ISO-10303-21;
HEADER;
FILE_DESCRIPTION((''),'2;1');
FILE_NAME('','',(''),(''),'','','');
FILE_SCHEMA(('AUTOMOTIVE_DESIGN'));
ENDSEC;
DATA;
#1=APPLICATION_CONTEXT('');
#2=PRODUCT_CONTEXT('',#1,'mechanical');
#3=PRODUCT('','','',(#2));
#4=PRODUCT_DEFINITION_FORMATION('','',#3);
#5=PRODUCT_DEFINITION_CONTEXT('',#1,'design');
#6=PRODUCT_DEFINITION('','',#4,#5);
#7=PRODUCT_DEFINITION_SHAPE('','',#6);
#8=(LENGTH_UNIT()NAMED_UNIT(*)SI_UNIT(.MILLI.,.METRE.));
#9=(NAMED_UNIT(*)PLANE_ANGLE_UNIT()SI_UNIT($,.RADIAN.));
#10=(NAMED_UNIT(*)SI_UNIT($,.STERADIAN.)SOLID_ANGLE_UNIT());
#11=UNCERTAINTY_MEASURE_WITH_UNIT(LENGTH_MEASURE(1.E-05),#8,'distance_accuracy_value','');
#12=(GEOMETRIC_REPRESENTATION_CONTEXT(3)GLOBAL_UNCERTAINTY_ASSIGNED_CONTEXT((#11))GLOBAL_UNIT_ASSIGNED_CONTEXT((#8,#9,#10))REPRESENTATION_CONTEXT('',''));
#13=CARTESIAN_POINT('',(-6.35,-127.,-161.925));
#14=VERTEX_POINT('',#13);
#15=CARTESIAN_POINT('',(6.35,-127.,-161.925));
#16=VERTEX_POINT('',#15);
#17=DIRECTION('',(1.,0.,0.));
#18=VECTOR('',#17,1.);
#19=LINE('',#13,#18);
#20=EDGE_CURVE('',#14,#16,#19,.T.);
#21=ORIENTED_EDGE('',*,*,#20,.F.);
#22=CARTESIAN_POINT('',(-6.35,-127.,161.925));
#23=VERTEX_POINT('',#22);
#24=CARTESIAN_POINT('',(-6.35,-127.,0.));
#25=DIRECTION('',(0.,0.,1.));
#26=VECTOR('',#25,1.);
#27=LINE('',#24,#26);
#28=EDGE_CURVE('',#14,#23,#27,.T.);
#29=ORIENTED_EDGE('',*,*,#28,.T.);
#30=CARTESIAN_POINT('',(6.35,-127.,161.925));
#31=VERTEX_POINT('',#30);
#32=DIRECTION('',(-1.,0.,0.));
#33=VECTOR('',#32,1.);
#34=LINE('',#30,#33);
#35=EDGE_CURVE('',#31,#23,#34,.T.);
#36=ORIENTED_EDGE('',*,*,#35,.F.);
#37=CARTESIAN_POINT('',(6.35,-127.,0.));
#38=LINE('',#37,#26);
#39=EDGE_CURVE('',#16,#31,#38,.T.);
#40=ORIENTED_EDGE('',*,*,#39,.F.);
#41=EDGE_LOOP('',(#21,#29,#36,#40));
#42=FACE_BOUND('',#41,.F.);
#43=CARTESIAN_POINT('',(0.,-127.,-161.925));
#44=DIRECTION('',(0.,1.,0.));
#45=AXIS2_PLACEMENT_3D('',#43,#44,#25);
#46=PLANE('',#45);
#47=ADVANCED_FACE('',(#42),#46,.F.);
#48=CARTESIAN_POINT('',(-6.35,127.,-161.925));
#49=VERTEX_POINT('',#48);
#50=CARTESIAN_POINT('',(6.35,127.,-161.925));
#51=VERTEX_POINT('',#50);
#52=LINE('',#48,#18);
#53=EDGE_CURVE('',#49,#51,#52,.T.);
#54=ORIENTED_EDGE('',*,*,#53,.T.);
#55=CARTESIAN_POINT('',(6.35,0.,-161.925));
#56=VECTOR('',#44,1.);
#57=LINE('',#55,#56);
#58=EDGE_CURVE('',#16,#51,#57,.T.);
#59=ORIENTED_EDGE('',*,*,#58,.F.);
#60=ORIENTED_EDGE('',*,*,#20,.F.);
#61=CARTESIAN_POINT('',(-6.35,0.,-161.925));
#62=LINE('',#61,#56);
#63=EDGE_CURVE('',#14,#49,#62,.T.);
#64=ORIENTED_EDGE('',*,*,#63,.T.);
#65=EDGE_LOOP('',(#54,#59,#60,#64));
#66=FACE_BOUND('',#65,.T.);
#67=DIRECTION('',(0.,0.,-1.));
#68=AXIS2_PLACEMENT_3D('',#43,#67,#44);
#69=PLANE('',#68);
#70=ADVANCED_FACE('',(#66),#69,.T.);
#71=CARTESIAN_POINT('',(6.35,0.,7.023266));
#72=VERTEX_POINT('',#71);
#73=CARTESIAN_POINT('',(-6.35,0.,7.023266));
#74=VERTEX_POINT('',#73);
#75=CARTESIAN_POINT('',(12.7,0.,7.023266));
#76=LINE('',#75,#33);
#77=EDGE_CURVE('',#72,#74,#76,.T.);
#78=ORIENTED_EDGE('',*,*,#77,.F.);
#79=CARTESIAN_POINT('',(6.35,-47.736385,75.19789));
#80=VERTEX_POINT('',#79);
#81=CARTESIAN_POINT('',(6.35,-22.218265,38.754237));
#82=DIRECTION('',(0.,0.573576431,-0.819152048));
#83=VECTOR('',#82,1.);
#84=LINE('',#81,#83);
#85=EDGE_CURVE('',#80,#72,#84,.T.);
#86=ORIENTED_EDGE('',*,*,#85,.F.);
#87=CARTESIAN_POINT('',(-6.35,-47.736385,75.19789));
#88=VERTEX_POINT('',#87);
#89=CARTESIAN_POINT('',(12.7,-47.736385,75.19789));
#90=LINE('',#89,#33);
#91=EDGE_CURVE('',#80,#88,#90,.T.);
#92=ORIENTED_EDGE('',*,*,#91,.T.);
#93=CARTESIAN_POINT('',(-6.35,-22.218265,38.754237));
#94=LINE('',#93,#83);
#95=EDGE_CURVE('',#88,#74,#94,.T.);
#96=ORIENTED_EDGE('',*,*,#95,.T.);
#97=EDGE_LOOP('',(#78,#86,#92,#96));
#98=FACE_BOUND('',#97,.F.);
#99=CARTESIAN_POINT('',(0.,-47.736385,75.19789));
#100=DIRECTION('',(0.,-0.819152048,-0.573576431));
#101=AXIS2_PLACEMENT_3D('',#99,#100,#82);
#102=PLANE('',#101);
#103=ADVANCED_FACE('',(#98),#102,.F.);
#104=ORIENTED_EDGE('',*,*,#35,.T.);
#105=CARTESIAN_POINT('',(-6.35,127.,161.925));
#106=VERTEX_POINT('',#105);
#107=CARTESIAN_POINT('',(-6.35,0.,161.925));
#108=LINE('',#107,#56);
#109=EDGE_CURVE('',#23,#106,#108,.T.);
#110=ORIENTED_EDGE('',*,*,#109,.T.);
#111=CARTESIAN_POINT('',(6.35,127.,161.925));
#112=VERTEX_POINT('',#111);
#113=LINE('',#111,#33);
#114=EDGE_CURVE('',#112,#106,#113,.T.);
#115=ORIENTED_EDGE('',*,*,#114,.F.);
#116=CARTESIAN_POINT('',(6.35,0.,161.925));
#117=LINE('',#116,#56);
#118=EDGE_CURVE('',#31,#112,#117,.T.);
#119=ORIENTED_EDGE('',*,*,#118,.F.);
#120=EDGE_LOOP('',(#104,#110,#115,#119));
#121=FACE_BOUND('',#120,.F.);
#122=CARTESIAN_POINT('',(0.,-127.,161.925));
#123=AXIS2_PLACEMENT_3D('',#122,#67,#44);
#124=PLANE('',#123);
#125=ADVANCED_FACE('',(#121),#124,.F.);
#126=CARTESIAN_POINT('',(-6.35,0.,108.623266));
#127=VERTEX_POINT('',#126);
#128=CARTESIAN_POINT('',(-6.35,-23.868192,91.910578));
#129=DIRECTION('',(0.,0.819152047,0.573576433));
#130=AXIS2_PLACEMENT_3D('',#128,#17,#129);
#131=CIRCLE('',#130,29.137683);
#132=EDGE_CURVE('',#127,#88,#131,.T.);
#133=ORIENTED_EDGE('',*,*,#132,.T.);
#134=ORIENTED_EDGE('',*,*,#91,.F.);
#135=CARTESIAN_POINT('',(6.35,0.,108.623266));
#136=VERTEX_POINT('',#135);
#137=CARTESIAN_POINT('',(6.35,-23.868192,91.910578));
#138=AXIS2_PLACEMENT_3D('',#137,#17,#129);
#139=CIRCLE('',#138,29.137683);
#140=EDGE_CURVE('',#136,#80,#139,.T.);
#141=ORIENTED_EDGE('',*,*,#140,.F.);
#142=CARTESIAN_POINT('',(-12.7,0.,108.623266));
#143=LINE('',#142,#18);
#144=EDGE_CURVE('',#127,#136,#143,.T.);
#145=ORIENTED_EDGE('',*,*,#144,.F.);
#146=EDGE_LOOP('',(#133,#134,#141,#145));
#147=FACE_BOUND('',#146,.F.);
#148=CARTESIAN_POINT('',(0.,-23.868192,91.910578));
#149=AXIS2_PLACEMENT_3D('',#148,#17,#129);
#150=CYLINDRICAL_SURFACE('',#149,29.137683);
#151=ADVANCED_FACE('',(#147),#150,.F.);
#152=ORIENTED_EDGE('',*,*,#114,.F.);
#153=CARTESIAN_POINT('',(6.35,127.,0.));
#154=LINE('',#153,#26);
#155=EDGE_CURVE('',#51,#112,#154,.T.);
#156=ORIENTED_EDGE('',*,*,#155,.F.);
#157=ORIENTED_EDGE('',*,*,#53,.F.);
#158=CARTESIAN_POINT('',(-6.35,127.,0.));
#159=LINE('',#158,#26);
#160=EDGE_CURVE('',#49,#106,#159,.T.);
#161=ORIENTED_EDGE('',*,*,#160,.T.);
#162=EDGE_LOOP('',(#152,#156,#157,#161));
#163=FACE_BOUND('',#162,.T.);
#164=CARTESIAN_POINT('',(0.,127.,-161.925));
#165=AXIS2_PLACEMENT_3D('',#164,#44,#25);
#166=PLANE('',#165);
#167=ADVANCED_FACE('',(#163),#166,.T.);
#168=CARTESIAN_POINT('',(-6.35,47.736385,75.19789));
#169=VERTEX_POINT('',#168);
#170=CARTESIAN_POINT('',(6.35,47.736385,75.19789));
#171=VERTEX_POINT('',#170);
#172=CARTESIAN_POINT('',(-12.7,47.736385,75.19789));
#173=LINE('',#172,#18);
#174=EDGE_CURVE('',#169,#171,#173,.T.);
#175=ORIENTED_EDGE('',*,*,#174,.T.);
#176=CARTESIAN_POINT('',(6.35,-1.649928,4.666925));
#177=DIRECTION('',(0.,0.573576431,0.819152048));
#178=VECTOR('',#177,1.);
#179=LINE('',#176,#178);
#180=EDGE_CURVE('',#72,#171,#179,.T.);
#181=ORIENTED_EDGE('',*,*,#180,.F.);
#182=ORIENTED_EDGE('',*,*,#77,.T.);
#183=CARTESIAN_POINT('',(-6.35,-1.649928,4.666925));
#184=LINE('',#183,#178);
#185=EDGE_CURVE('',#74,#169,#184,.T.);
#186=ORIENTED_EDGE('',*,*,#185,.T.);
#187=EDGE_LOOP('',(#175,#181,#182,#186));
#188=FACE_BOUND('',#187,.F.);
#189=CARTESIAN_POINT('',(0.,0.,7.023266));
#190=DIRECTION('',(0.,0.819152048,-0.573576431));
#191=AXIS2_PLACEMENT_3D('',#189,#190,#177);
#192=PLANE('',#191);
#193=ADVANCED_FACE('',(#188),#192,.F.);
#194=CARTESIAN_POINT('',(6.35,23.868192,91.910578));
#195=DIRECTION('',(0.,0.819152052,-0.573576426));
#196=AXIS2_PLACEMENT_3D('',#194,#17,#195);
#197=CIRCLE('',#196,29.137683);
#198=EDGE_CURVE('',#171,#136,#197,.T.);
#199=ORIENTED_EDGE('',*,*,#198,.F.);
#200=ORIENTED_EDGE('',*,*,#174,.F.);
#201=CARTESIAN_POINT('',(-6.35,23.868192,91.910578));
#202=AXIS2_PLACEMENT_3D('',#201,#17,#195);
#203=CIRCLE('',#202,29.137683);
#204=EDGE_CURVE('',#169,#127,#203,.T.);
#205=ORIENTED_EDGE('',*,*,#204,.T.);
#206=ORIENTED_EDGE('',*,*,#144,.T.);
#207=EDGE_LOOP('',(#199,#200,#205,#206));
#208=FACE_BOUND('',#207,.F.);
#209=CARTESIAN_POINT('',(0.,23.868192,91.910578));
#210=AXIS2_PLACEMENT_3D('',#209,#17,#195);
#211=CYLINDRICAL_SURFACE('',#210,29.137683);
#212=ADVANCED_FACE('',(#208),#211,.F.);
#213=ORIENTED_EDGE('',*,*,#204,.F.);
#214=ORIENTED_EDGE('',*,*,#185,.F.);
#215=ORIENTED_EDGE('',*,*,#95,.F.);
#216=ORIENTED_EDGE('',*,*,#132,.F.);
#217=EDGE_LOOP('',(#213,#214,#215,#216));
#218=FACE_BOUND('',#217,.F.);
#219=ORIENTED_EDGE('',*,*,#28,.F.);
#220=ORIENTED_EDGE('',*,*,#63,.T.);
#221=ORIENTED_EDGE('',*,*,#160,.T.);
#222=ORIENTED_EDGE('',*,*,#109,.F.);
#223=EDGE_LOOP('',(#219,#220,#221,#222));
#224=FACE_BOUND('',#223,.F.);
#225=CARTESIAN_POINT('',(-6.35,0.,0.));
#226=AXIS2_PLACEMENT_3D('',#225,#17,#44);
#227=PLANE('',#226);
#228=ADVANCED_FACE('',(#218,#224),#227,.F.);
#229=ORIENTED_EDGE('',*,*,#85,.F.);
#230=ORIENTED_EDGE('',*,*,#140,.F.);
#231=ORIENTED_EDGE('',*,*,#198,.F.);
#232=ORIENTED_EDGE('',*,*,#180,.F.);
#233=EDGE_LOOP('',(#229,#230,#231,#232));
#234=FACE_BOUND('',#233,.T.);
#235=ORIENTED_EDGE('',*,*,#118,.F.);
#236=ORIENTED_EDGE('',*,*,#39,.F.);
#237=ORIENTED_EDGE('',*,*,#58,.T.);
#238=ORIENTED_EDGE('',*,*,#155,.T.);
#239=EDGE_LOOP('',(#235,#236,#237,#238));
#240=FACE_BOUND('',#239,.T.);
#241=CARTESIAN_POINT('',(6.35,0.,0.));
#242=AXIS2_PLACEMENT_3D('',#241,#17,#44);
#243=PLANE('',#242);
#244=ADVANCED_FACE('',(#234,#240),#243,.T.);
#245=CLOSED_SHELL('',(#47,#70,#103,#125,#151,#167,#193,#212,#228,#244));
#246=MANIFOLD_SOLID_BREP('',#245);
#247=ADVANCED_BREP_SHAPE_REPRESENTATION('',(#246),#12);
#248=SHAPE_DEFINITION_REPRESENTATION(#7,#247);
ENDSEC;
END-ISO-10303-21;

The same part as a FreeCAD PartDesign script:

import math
import FreeCAD as App
import Part
import Sketcher

V = App.Vector
Q = App.Units.Quantity


def add_polygon(sketch, points):
    """Adds a closed chain of lines whose ends are joined by coincident constraints."""
    first, n = sketch.GeometryCount, len(points)
    for a, b in zip(points, points[1:] + points[:1]):
        sketch.addGeometry(Part.LineSegment(App.Vector(*a, 0), App.Vector(*b, 0)), False)
    for i in range(n):
        sketch.addConstraint(Sketcher.Constraint("Coincident", first + i, 2, first + (i + 1) % n, 1))

doc = App.newDocument("Part")
body = doc.addObject("PartDesign::Body", "Body")

# Sketch on YZ plane
sketch1 = body.newObject("Sketcher::SketchObject", "Sketch")
sketch1.AttachmentSupport = (doc.getObject("YZ_Plane"), [""])
sketch1.MapMode = "FlatFace"
add_polygon(sketch1, [(-127, 162), (-127, -162), (127, -162), (127, 162)])  # lines 0-3
sketch1.addConstraint([
    Sketcher.Constraint("Vertical", 0),
    Sketcher.Constraint("Horizontal", 1),
    Sketcher.Constraint("Vertical", 2),
    Sketcher.Constraint("Horizontal", 3),
    Sketcher.Constraint("Symmetric", 0, 2, 2, 2, -1, 1),
    Sketcher.Constraint("DistanceX", 1, 1, 1, 2, Q("10 in")),
    Sketcher.Constraint("DistanceY", 0, 2, 0, 1, Q("12.75 in")),
])
pad1 = body.newObject("PartDesign::Pad", "Pad")
pad1.Profile = sketch1
pad1.Length = Q("0.5 in")
pad1.Midplane = True

# Sketch on YZ plane
sketch2 = body.newObject("Sketcher::SketchObject", "Sketch001")
sketch2.AttachmentSupport = (doc.getObject("YZ_Plane"), [""])
sketch2.MapMode = "FlatFace"
sketch2.addGeometry([
    Part.LineSegment(V(0, 7, 0), V(48, 75, 0)),
    Part.ArcOfCircle(Part.Circle(V(24, 92, 0), V(0, 0, 1), 29), math.radians(-35), math.radians(145)),
    Part.ArcOfCircle(Part.Circle(V(-24, 92, 0), V(0, 0, 1), 29), math.radians(35), math.radians(215)),
    Part.LineSegment(V(-48, 75, 0), V(0, 7, 0)),
], False)
sketch2.addConstraint([
    Sketcher.Constraint("Tangent", 0, 2, 1, 1),
    Sketcher.Constraint("Coincident", 1, 2, 2, 1),
    Sketcher.Constraint("Tangent", 2, 2, 3, 1),
    Sketcher.Constraint("Coincident", 3, 2, 0, 1),
    Sketcher.Constraint("Equal", 1, 2),
    Sketcher.Constraint("Symmetric", 1, 3, 2, 3, -2),
    Sketcher.Constraint("PointOnObject", 3, 2, -2),
    Sketcher.Constraint("Angle", 0, Q("55 deg")),
    Sketcher.Constraint("DistanceY", 3, 2, 1, 2, Q("4 in")),
    Sketcher.Constraint("Distance", 0, 83.225848),
    Sketcher.Constraint("DistanceY", -1, 1, 0, 2, 75.19789),
])
pocket1 = body.newObject("PartDesign::Pocket", "Pocket")
pocket1.Profile = sketch2
pocket1.Length = Q("1 in")
pocket1.Midplane = True

doc.recompute()
